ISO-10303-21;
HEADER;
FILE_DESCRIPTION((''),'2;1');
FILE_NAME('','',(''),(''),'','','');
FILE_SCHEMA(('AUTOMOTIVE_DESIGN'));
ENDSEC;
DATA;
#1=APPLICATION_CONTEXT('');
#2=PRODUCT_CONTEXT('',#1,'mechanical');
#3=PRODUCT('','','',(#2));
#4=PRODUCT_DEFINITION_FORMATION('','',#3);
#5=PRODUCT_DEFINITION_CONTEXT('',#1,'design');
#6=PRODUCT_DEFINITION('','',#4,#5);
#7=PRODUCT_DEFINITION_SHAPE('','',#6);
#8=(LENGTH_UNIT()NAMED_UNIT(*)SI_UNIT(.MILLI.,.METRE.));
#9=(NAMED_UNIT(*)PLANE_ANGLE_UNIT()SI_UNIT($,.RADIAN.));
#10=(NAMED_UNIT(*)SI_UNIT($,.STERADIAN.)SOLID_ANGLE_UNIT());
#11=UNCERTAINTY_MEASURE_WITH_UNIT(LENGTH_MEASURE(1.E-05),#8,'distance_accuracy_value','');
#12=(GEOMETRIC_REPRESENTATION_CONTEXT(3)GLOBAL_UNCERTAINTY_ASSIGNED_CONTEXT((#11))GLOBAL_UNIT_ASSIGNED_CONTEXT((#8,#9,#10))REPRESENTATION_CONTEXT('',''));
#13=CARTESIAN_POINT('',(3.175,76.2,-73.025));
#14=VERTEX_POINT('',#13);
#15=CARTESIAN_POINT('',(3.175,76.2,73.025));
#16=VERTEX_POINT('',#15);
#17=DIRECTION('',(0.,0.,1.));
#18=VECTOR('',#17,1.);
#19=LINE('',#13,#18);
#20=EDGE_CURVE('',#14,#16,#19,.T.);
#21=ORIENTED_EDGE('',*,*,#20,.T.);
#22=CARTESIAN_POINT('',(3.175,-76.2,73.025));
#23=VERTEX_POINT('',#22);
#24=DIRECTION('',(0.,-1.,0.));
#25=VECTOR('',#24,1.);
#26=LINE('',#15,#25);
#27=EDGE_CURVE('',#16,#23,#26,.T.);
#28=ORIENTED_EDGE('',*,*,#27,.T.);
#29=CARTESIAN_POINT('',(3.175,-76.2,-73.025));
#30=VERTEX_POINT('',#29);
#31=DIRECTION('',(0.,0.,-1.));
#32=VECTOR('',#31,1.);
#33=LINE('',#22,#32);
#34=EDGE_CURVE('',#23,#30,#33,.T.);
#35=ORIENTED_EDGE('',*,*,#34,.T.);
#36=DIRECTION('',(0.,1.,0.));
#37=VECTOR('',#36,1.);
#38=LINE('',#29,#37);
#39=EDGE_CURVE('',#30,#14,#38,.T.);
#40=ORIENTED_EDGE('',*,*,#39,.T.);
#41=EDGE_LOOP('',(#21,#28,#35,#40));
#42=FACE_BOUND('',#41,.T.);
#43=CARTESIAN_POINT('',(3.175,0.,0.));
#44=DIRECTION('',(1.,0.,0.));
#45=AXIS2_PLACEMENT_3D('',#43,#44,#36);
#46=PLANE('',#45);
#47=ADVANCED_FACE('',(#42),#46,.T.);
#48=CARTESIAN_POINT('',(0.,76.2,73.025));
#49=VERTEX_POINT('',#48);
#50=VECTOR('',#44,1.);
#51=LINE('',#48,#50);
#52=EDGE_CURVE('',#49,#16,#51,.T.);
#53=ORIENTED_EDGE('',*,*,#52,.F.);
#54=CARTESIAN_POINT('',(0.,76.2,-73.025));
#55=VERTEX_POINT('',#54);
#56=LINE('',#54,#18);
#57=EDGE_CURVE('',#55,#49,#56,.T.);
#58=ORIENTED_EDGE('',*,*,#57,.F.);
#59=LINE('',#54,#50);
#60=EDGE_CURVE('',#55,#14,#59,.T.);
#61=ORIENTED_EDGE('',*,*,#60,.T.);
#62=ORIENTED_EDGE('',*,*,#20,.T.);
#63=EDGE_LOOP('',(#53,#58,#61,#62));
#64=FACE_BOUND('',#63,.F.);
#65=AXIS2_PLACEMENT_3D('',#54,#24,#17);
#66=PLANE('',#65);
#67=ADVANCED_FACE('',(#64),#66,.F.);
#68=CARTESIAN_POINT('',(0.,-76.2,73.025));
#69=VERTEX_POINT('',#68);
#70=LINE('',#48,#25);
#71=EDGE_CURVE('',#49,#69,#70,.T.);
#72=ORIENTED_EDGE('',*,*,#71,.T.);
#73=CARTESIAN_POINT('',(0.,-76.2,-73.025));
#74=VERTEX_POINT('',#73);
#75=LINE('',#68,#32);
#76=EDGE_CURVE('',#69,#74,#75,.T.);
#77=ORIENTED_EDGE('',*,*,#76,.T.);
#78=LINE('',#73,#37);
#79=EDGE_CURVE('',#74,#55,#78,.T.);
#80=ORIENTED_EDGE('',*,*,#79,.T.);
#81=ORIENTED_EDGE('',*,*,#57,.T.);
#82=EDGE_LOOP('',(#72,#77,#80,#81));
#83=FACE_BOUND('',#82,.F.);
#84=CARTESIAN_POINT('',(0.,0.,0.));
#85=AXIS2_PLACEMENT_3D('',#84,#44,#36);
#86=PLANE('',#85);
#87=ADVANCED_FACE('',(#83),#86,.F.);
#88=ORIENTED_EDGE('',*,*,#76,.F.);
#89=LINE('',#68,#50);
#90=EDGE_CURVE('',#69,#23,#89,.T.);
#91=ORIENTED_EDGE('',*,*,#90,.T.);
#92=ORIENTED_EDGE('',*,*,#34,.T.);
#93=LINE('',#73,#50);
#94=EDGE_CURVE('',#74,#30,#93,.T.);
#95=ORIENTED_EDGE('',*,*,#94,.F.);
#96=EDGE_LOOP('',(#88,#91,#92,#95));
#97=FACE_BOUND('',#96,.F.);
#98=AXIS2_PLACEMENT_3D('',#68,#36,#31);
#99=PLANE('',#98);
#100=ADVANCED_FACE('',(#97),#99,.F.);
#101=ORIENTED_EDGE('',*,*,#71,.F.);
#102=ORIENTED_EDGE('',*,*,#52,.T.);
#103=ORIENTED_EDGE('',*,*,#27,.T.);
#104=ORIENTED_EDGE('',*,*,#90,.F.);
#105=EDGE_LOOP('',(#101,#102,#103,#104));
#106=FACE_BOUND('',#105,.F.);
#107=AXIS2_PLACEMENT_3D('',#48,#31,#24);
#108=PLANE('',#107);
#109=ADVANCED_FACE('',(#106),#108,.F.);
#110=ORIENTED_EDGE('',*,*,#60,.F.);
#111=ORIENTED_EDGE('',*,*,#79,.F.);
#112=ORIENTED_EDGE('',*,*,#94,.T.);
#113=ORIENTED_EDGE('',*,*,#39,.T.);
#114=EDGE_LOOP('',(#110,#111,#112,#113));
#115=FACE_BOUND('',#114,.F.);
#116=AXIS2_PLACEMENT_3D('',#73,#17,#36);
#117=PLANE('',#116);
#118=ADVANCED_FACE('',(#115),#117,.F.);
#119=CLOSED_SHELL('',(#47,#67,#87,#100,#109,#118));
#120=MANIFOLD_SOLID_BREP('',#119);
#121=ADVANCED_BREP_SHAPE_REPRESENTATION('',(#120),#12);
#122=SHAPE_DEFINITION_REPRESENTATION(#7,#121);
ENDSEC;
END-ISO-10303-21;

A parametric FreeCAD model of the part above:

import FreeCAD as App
import Part
import Sketcher
Q = App.Units.Quantity


def add_polygon(sketch, points):
    """Adds a closed chain of lines whose ends are joined by coincident constraints."""
    first, n = sketch.GeometryCount, len(points)
    for a, b in zip(points, points[1:] + points[:1]):
        sketch.addGeometry(Part.LineSegment(App.Vector(*a, 0), App.Vector(*b, 0)), False)
    for i in range(n):
        sketch.addConstraint(Sketcher.Constraint("Coincident", first + i, 2, first + (i + 1) % n, 1))

doc = App.newDocument("Part")
body = doc.addObject("PartDesign::Body", "Body")

sketch1 = doc.addObject("Sketcher::SketchObject", "Sketch")
body.addObject(sketch1)
sketch1.AttachmentSupport = (doc.YZ_Plane, [""])
sketch1.MapMode = "FlatFace"
add_polygon(sketch1, [(-76, 73), (-76, -73), (76, -73), (76, 73)])
sketch1.addConstraint([
    Sketcher.Constraint("Vertical", 0),
    Sketcher.Constraint("Horizontal", 1),
    Sketcher.Constraint("Vertical", 2),
    Sketcher.Constraint("Horizontal", 3),
    Sketcher.Constraint("Symmetric", 0, 2, 2, 2, -1, 1),
    Sketcher.Constraint("DistanceX", 1, 1, 1, 2, Q("6 in")),
    Sketcher.Constraint("DistanceY", 0, 2, 0, 1, Q("5.75 in")),
])
pad1 = doc.addObject("PartDesign::Pad", "Pad")
body.addObject(pad1)
pad1.Profile = sketch1
pad1.Length = Q("0.125 in")

doc.recompute()
